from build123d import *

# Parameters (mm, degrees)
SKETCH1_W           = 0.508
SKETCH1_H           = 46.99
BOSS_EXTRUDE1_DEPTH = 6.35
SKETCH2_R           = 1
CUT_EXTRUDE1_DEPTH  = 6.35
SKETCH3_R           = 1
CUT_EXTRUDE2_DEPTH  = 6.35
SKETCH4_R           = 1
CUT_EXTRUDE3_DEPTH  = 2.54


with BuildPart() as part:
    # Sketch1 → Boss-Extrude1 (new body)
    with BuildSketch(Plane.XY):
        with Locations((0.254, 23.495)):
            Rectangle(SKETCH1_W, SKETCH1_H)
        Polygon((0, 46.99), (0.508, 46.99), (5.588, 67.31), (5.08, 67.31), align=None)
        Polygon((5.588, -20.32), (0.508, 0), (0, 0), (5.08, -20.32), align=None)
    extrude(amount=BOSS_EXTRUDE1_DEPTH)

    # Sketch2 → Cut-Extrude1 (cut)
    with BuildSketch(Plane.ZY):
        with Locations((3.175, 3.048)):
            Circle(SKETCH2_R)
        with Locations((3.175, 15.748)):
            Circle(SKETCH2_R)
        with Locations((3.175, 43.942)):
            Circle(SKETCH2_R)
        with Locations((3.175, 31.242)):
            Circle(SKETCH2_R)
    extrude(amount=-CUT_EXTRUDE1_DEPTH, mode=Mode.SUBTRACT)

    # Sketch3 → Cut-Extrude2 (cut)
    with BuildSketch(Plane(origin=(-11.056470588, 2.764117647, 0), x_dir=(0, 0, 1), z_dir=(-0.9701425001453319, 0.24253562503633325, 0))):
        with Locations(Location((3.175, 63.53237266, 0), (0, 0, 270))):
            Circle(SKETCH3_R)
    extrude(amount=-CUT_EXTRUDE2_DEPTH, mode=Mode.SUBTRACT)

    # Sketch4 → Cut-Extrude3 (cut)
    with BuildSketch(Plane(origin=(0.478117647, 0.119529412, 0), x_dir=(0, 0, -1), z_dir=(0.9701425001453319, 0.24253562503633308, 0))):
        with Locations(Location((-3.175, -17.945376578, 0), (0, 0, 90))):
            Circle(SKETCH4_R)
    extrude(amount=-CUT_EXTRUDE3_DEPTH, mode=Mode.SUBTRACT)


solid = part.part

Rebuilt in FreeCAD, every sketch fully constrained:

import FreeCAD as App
import Part
import Sketcher

V = App.Vector
Q = App.Units.Quantity


def add_polygon(sketch, points):
    """Adds a closed chain of lines whose ends are joined by coincident constraints."""
    first, n = sketch.GeometryCount, len(points)
    for a, b in zip(points, points[1:] + points[:1]):
        sketch.addGeometry(Part.LineSegment(App.Vector(*a, 0), App.Vector(*b, 0)), False)
    for i in range(n):
        sketch.addConstraint(Sketcher.Constraint("Coincident", first + i, 2, first + (i + 1) % n, 1))

doc = App.newDocument("Part")
params = doc.addObject("Spreadsheet::Sheet", "Params")
for row, (alias, value) in enumerate([
    ("sketch1_width", "0.02 in"),
    ("sketch1_height", "1.85 in"),
    ("pad1_length", "0.25 in"),
    ("pocket1_length", "0.25 in"),
    ("pocket2_length", "0.25 in"),
    ("pocket3_length", "0.1 in"),
], start=1):
    params.set(f"A{row}", alias)
    params.set(f"B{row}", "=" + value)
    params.setAlias(f"B{row}", alias)

body = doc.addObject("PartDesign::Body", "Body")

sketch1 = body.newObject("Sketcher::SketchObject", "Sketch")
sketch1.AttachmentSupport = (doc.getObject("XY_Plane"), [""])
sketch1.MapMode = "FlatFace"
add_polygon(sketch1, [(0, 47), (0, 0), (5.1, -20.3), (5.6, -20.3), (0.5, 0), (0.5, 47), (5.6, 67.3), (5.1, 67.3)])
sketch1.addConstraint(Sketcher.Constraint("Vertical", 0))
sketch1.addConstraint(Sketcher.Constraint("Horizontal", 2))
sketch1.addConstraint(Sketcher.Constraint("Vertical", 4))
sketch1.addConstraint(Sketcher.Constraint("Horizontal", 6))
sketch1.addConstraint(Sketcher.Constraint("Coincident", 0, 2, -1, 1))
sketch1.addConstraint(Sketcher.Constraint("PointOnObject", 3, 2, -1))
sketch1.addConstraint(Sketcher.Constraint("Parallel", 1, 3))
sketch1.addConstraint(Sketcher.Constraint("Parallel", 5, 7))
sketch1.addConstraint(Sketcher.Constraint("Horizontal", 4, 2, 7, 2))
sketch1.addConstraint(Sketcher.Constraint("Vertical", 2, 2, 5, 2))
sketch1.addConstraint(Sketcher.Constraint("Equal", 3, 5))
sketch1.addConstraint(Sketcher.Constraint("DistanceX", 2, 1, 2, 2, Q("0.02 in")))
sketch1.addConstraint(Sketcher.Constraint("DistanceY", 0, 2, 0, 1, Q("1.85 in")))
sketch1.addConstraint(Sketcher.Constraint("DistanceX", -1, 1, 1, 2, Q("0.2 in")))
sketch1.addConstraint(Sketcher.Constraint("DistanceY", 1, 2, -1, 1, Q("0.8 in")))
sketch1.setExpression("Constraints[19]", "Params.sketch1_width")
sketch1.setExpression("Constraints[20]", "Params.sketch1_height")
pad1 = body.newObject("PartDesign::Pad", "Pad")
pad1.Profile = sketch1
pad1.setExpression("Length", "Params.pad1_length")

sketch2 = body.newObject("Sketcher::SketchObject", "Sketch001")
sketch2.AttachmentSupport = (doc.getObject("YZ_Plane"), [""])
sketch2.MapMode = "FlatFace"
sketch2.addGeometry(Part.Circle(V(3, 3.2, 0), V(0, 0, 1), 1), False)
sketch2.addGeometry(Part.Circle(V(15.7, 3.2, 0), V(0, 0, 1), 1), False)
sketch2.addGeometry(Part.Circle(V(43.9, 3.2, 0), V(0, 0, 1), 1), False)
sketch2.addGeometry(Part.Circle(V(31.2, 3.2, 0), V(0, 0, 1), 1), False)
sketch2.addConstraint(Sketcher.Constraint("Equal", 0, 1))
sketch2.addConstraint(Sketcher.Constraint("Equal", 1, 2))
sketch2.addConstraint(Sketcher.Constraint("Equal", 2, 3))
sketch2.addConstraint(Sketcher.Constraint("Horizontal", 0, 3, 1, 3))
sketch2.addConstraint(Sketcher.Constraint("Horizontal", 1, 3, 2, 3))
sketch2.addConstraint(Sketcher.Constraint("Horizontal", 2, 3, 3, 3))
sketch2.addConstraint(Sketcher.Constraint("DistanceX", 0, 3, 1, 3, Q("0.5 in")))
sketch2.addConstraint(Sketcher.Constraint("DistanceX", 3, 3, 2, 3, Q("0.5 in")))
sketch2.addConstraint(Sketcher.Constraint("Diameter", 0, 2.0))
sketch2.addConstraint(Sketcher.Constraint("DistanceX", -1, 1, 0, 3, Q("0.12 in")))
sketch2.addConstraint(Sketcher.Constraint("DistanceX", -1, 1, 2, 3, Q("1.73 in")))
sketch2.addConstraint(Sketcher.Constraint("DistanceY", -1, 1, 0, 3, Q("0.125 in")))
pocket1 = body.newObject("PartDesign::Pocket", "Pocket")
pocket1.Profile = sketch2
pocket1.setExpression("Length", "Params.pocket1_length")
pocket1.Reversed = True

sketch3 = body.newObject("Sketcher::SketchObject", "Sketch002")
sketch3.Placement = App.Placement(V(-11.056471, 2.764118, 0), App.Rotation(V(0, 0, 1), V(0.242535625, 0.9701425, 0), V(-0.9701425, 0.242535625, 0), "ZXY"))
sketch3.addGeometry(Part.Circle(V(3.2, 63.5, 0), V(0, 0, 1), 1), False)
sketch3.addConstraint(Sketcher.Constraint("Diameter", 0, 2.0))
sketch3.addConstraint(Sketcher.Constraint("DistanceX", -1, 1, 0, 3, Q("0.125 in")))
sketch3.addConstraint(Sketcher.Constraint("DistanceY", -1, 1, 0, 3, 63.532373))
pocket2 = body.newObject("PartDesign::Pocket", "Pocket001")
pocket2.Profile = sketch3
pocket2.setExpression("Length", "Params.pocket2_length")

sketch4 = body.newObject("Sketcher::SketchObject", "Sketch003")
sketch4.Placement = App.Placement(V(0.478118, 0.119529, 0), App.Rotation(V(0, 0, -1), V(-0.242535625, 0.9701425, 0), V(0.9701425, 0.242535625, 0), "ZXY"))
sketch4.addGeometry(Part.Circle(V(-3.2, -17.9, 0), V(0, 0, 1), 1), False)
sketch4.addConstraint(Sketcher.Constraint("Diameter", 0, 2.0))
sketch4.addConstraint(Sketcher.Constraint("DistanceX", 0, 3, -1, 1, Q("0.125 in")))
sketch4.addConstraint(Sketcher.Constraint("DistanceY", 0, 3, -1, 1, 17.945377))
pocket3 = body.newObject("PartDesign::Pocket", "Pocket002")
pocket3.Profile = sketch4
pocket3.setExpression("Length", "Params.pocket3_length")

doc.recompute()
